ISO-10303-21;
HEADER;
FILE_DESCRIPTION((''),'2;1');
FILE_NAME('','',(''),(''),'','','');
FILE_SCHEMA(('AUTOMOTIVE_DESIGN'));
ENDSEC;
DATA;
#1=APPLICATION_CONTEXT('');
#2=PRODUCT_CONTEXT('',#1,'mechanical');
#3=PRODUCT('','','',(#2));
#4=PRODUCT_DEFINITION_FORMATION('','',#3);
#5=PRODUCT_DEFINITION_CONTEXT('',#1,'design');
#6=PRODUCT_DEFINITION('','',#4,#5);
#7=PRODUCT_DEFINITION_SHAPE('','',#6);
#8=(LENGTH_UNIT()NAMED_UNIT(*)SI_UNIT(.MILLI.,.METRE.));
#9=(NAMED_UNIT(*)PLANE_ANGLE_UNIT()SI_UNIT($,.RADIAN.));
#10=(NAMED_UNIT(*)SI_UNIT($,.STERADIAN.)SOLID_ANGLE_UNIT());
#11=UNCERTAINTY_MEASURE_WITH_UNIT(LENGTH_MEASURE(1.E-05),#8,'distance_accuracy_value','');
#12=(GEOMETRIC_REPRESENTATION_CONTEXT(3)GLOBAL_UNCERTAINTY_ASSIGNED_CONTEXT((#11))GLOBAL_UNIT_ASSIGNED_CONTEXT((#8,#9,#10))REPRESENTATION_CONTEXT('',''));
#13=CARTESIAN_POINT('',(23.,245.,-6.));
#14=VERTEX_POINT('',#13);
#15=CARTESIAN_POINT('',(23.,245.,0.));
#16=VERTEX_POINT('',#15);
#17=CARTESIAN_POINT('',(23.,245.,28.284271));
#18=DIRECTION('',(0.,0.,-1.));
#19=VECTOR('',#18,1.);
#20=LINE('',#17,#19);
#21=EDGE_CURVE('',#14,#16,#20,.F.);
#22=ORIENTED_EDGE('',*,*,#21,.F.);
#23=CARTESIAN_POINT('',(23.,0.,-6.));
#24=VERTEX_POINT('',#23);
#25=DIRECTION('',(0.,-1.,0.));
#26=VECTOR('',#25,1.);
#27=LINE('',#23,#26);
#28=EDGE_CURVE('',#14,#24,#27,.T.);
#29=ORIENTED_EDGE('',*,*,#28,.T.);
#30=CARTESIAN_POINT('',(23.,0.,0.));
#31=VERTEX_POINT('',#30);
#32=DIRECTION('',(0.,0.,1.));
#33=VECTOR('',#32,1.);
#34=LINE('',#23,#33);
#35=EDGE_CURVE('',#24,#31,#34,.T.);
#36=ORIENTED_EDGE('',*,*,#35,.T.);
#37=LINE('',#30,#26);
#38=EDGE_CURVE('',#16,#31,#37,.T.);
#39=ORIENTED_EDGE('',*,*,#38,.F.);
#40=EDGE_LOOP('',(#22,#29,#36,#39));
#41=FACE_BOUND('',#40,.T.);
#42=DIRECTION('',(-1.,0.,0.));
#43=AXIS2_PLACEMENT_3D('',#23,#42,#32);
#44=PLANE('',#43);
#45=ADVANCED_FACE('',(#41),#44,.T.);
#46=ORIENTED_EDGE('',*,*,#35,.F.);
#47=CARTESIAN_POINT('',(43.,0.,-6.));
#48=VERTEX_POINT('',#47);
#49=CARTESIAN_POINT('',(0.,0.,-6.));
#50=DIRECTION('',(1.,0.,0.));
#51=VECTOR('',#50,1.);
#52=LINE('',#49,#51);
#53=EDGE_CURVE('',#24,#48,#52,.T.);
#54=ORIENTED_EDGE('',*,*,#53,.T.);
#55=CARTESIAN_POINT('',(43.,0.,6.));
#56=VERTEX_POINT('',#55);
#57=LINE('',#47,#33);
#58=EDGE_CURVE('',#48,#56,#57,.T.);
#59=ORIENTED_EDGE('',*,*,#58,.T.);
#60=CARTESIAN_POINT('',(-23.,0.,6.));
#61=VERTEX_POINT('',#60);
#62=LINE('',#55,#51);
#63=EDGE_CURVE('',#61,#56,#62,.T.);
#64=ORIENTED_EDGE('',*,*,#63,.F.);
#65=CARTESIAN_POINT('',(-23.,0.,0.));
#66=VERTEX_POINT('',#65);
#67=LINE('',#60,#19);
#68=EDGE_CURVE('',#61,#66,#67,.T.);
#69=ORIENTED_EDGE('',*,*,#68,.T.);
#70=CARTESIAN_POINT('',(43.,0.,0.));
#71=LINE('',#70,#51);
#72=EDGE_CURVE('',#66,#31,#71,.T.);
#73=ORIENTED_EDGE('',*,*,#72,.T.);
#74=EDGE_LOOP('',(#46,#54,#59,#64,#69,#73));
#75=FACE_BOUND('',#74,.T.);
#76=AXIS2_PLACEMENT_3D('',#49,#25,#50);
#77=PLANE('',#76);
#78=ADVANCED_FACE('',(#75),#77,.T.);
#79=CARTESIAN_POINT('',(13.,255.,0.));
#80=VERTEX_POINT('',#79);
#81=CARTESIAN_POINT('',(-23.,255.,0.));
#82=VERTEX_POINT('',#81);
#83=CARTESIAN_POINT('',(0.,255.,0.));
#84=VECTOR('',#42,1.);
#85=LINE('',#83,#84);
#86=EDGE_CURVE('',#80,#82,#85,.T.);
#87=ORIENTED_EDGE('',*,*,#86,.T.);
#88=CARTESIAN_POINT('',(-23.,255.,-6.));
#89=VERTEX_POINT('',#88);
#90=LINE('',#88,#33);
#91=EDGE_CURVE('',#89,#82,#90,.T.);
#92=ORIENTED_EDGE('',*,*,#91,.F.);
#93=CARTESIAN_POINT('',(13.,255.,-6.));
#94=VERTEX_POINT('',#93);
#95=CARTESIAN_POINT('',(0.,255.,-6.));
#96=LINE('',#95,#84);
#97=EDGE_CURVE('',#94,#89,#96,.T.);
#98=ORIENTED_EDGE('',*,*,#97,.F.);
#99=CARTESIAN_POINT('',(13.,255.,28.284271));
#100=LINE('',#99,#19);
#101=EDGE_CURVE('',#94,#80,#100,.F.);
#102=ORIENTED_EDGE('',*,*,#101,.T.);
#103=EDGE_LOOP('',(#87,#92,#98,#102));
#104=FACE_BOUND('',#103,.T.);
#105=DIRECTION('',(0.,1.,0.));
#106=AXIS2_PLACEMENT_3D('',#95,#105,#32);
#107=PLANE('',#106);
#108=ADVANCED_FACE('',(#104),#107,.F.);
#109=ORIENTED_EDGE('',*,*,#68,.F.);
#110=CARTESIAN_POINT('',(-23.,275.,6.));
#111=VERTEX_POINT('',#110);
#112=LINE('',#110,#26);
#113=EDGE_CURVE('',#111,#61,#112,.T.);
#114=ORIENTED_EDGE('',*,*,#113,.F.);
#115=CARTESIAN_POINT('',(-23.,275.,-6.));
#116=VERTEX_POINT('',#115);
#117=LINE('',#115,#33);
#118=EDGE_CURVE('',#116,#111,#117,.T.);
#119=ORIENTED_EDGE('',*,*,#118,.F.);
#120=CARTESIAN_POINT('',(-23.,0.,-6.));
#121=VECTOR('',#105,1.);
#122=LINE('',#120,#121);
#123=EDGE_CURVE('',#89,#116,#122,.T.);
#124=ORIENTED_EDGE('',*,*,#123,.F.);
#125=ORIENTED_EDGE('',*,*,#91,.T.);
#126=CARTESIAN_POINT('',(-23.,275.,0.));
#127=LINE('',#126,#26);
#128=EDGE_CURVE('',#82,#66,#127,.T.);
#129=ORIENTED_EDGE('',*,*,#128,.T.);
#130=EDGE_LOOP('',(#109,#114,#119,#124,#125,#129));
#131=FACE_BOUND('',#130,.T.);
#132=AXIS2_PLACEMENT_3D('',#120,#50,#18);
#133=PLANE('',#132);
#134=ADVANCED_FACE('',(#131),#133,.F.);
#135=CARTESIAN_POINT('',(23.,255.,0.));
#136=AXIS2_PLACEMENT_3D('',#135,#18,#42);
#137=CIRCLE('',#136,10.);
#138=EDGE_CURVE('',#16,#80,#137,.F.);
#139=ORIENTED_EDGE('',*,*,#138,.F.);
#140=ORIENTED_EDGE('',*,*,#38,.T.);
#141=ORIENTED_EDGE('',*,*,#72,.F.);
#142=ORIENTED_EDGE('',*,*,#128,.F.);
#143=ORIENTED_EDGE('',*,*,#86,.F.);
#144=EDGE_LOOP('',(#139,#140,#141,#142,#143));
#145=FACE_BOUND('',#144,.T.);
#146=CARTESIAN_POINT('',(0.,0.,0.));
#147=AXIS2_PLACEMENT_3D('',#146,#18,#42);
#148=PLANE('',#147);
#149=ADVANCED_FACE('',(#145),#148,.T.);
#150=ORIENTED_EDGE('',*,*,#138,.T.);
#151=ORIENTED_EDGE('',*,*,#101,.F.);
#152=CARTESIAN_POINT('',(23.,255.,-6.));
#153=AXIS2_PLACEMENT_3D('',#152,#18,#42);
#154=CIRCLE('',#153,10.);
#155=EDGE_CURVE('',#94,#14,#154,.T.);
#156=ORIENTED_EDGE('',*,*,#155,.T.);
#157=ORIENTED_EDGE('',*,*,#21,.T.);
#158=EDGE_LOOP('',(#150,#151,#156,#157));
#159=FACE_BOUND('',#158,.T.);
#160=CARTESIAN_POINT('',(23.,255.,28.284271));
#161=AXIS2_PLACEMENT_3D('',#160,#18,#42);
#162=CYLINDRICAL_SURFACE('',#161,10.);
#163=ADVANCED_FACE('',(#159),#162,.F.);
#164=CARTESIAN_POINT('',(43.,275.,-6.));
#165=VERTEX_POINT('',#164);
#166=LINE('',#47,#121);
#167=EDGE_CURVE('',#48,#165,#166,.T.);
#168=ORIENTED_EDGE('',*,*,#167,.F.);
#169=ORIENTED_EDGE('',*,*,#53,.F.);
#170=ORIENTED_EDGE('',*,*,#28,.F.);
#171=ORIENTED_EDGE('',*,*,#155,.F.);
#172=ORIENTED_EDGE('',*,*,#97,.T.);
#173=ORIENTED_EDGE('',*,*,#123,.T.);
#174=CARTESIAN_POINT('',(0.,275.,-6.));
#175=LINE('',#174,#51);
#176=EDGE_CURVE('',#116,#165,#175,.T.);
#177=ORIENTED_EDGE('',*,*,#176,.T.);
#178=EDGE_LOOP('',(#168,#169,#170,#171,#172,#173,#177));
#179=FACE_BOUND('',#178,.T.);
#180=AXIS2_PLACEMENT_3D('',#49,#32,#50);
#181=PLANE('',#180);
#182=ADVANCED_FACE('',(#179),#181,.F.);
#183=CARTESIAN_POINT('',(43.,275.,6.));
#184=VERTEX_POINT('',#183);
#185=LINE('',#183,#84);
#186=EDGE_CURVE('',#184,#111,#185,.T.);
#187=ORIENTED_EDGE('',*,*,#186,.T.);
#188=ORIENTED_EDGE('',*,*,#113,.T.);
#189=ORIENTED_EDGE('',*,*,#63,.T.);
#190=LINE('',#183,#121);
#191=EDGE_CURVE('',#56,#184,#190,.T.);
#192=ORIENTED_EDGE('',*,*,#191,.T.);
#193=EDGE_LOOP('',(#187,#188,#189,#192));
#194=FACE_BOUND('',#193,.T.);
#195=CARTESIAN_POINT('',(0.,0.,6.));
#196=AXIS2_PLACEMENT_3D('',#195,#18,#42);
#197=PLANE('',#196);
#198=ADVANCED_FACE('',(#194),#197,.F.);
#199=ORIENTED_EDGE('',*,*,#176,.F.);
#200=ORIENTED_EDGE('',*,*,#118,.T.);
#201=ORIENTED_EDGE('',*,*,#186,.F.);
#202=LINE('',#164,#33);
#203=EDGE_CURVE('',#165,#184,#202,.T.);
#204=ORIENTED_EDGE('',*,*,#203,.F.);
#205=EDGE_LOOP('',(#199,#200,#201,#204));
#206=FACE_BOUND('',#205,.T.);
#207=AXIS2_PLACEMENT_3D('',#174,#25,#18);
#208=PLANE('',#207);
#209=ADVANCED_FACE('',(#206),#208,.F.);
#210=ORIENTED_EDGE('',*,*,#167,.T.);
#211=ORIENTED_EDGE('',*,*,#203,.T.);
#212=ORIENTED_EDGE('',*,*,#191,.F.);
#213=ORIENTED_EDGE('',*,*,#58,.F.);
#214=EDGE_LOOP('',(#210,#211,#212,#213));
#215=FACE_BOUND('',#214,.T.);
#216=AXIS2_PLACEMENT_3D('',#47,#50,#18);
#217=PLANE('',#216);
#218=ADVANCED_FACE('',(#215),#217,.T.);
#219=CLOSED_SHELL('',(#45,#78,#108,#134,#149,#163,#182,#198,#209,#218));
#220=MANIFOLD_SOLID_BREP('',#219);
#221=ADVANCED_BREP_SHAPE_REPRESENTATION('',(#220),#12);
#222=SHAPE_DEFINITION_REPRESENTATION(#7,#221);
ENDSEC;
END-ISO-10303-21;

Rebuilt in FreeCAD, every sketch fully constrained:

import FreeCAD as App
import Part
import Sketcher
Q = App.Units.Quantity

doc = App.newDocument("Part")
body = doc.addObject("PartDesign::Body", "Body")

sketch1 = body.newObject("Sketcher::SketchObject", "Sketch")
sketch1.AttachmentSupport = (doc.getObject("XY_Plane"), [""])
sketch1.MapMode = "FlatFace"
sketch1.addGeometry(Part.LineSegment(App.Vector(23, 255, 0), App.Vector(23, 0, 0)), False)
sketch1.addGeometry(Part.LineSegment(App.Vector(23, 0, 0), App.Vector(43, 0, 0)), False)
sketch1.addGeometry(Part.LineSegment(App.Vector(43, 0, 0), App.Vector(43, 275, 0)), False)
sketch1.addGeometry(Part.LineSegment(App.Vector(43, 275, 0), App.Vector(-23, 275, 0)), False)
sketch1.addGeometry(Part.LineSegment(App.Vector(-23, 275, 0), App.Vector(-23, 255, 0)), False)
sketch1.addGeometry(Part.LineSegment(App.Vector(-23, 255, 0), App.Vector(23, 255, 0)), False)
sketch1.addConstraint(Sketcher.Constraint("Coincident", 0, 2, 1, 1))
sketch1.addConstraint(Sketcher.Constraint("Coincident", 1, 2, 2, 1))
sketch1.addConstraint(Sketcher.Constraint("Coincident", 2, 2, 3, 1))
sketch1.addConstraint(Sketcher.Constraint("Coincident", 3, 2, 4, 1))
sketch1.addConstraint(Sketcher.Constraint("Coincident", 4, 2, 5, 1))
sketch1.addConstraint(Sketcher.Constraint("Coincident", 5, 2, 0, 1))
sketch1.addConstraint(Sketcher.Constraint("Vertical", 0))
sketch1.addConstraint(Sketcher.Constraint("Horizontal", 1))
sketch1.addConstraint(Sketcher.Constraint("Vertical", 2))
sketch1.addConstraint(Sketcher.Constraint("Horizontal", 3))
sketch1.addConstraint(Sketcher.Constraint("Vertical", 4))
sketch1.addConstraint(Sketcher.Constraint("Horizontal", 5))
sketch1.addConstraint(Sketcher.Constraint("PointOnObject", 0, 2, -1))
sketch1.addConstraint(Sketcher.Constraint("Equal", 1, 4))
sketch1.addConstraint(Sketcher.Constraint("DistanceX", 1, 1, 1, 2, Q("20 mm")))
sketch1.addConstraint(Sketcher.Constraint("DistanceX", 3, 2, 3, 1, Q("66 mm")))
sketch1.addConstraint(Sketcher.Constraint("DistanceY", 0, 2, 0, 1, Q("255 mm")))
sketch1.addConstraint(Sketcher.Constraint("DistanceX", -1, 1, 0, 2, Q("23 mm")))
pad1 = body.newObject("PartDesign::Pad", "Pad")
pad1.Profile = sketch1
pad1.Length = 6
pad1.Reversed = True

sketch2 = body.newObject("Sketcher::SketchObject", "Sketch001")
sketch2.AttachmentSupport = (doc.getObject("XY_Plane"), [""])
sketch2.MapMode = "FlatFace"
sketch2.addGeometry(Part.LineSegment(App.Vector(-23, 275, 0), App.Vector(-23, 0, 0)), False)
sketch2.addGeometry(Part.LineSegment(App.Vector(-23, 0, 0), App.Vector(43, 0, 0)), False)
sketch2.addGeometry(Part.LineSegment(App.Vector(43, 0, 0), App.Vector(43, 275, 0)), False)
sketch2.addGeometry(Part.LineSegment(App.Vector(43, 275, 0), App.Vector(-23, 275, 0)), False)
sketch2.addConstraint(Sketcher.Constraint("Coincident", 0, 2, 1, 1))
sketch2.addConstraint(Sketcher.Constraint("Coincident", 1, 2, 2, 1))
sketch2.addConstraint(Sketcher.Constraint("Coincident", 2, 2, 3, 1))
sketch2.addConstraint(Sketcher.Constraint("Coincident", 3, 2, 0, 1))
sketch2.addConstraint(Sketcher.Constraint("Vertical", 0))
sketch2.addConstraint(Sketcher.Constraint("Horizontal", 1))
sketch2.addConstraint(Sketcher.Constraint("Vertical", 2))
sketch2.addConstraint(Sketcher.Constraint("Horizontal", 3))
sketch2.addConstraint(Sketcher.Constraint("PointOnObject", 0, 2, -1))
sketch2.addConstraint(Sketcher.Constraint("DistanceX", 1, 1, 1, 2, Q("66 mm")))
sketch2.addConstraint(Sketcher.Constraint("DistanceY", 0, 2, 0, 1, Q("275 mm")))
sketch2.addConstraint(Sketcher.Constraint("DistanceX", 0, 2, -1, 1, Q("23 mm")))
pad2 = body.newObject("PartDesign::Pad", "Pad001")
pad2.Profile = sketch2
pad2.Length = 6

sketch3 = body.newObject("Sketcher::SketchObject", "Sketch002")
sketch3.AttachmentSupport = (doc.getObject("XY_Plane"), [""])
sketch3.MapMode = "FlatFace"
sketch3.AttachmentOffset = App.Placement(App.Vector(0, 0, -6), App.Rotation())
sketch3.addGeometry(Part.Circle(App.Vector(23, 255, 0), App.Vector(0, 0, 1), 10), False)
sketch3.addConstraint(Sketcher.Constraint("Diameter", 0, Q("20 mm")))
sketch3.addConstraint(Sketcher.Constraint("DistanceX", -1, 1, 0, 3, Q("23 mm")))
sketch3.addConstraint(Sketcher.Constraint("DistanceY", -1, 1, 0, 3, Q("255 mm")))
pocket1 = body.newObject("PartDesign::Pocket", "Pocket")
pocket1.Profile = sketch3
pocket1.Length = 6
pocket1.Reversed = True

doc.recompute()
